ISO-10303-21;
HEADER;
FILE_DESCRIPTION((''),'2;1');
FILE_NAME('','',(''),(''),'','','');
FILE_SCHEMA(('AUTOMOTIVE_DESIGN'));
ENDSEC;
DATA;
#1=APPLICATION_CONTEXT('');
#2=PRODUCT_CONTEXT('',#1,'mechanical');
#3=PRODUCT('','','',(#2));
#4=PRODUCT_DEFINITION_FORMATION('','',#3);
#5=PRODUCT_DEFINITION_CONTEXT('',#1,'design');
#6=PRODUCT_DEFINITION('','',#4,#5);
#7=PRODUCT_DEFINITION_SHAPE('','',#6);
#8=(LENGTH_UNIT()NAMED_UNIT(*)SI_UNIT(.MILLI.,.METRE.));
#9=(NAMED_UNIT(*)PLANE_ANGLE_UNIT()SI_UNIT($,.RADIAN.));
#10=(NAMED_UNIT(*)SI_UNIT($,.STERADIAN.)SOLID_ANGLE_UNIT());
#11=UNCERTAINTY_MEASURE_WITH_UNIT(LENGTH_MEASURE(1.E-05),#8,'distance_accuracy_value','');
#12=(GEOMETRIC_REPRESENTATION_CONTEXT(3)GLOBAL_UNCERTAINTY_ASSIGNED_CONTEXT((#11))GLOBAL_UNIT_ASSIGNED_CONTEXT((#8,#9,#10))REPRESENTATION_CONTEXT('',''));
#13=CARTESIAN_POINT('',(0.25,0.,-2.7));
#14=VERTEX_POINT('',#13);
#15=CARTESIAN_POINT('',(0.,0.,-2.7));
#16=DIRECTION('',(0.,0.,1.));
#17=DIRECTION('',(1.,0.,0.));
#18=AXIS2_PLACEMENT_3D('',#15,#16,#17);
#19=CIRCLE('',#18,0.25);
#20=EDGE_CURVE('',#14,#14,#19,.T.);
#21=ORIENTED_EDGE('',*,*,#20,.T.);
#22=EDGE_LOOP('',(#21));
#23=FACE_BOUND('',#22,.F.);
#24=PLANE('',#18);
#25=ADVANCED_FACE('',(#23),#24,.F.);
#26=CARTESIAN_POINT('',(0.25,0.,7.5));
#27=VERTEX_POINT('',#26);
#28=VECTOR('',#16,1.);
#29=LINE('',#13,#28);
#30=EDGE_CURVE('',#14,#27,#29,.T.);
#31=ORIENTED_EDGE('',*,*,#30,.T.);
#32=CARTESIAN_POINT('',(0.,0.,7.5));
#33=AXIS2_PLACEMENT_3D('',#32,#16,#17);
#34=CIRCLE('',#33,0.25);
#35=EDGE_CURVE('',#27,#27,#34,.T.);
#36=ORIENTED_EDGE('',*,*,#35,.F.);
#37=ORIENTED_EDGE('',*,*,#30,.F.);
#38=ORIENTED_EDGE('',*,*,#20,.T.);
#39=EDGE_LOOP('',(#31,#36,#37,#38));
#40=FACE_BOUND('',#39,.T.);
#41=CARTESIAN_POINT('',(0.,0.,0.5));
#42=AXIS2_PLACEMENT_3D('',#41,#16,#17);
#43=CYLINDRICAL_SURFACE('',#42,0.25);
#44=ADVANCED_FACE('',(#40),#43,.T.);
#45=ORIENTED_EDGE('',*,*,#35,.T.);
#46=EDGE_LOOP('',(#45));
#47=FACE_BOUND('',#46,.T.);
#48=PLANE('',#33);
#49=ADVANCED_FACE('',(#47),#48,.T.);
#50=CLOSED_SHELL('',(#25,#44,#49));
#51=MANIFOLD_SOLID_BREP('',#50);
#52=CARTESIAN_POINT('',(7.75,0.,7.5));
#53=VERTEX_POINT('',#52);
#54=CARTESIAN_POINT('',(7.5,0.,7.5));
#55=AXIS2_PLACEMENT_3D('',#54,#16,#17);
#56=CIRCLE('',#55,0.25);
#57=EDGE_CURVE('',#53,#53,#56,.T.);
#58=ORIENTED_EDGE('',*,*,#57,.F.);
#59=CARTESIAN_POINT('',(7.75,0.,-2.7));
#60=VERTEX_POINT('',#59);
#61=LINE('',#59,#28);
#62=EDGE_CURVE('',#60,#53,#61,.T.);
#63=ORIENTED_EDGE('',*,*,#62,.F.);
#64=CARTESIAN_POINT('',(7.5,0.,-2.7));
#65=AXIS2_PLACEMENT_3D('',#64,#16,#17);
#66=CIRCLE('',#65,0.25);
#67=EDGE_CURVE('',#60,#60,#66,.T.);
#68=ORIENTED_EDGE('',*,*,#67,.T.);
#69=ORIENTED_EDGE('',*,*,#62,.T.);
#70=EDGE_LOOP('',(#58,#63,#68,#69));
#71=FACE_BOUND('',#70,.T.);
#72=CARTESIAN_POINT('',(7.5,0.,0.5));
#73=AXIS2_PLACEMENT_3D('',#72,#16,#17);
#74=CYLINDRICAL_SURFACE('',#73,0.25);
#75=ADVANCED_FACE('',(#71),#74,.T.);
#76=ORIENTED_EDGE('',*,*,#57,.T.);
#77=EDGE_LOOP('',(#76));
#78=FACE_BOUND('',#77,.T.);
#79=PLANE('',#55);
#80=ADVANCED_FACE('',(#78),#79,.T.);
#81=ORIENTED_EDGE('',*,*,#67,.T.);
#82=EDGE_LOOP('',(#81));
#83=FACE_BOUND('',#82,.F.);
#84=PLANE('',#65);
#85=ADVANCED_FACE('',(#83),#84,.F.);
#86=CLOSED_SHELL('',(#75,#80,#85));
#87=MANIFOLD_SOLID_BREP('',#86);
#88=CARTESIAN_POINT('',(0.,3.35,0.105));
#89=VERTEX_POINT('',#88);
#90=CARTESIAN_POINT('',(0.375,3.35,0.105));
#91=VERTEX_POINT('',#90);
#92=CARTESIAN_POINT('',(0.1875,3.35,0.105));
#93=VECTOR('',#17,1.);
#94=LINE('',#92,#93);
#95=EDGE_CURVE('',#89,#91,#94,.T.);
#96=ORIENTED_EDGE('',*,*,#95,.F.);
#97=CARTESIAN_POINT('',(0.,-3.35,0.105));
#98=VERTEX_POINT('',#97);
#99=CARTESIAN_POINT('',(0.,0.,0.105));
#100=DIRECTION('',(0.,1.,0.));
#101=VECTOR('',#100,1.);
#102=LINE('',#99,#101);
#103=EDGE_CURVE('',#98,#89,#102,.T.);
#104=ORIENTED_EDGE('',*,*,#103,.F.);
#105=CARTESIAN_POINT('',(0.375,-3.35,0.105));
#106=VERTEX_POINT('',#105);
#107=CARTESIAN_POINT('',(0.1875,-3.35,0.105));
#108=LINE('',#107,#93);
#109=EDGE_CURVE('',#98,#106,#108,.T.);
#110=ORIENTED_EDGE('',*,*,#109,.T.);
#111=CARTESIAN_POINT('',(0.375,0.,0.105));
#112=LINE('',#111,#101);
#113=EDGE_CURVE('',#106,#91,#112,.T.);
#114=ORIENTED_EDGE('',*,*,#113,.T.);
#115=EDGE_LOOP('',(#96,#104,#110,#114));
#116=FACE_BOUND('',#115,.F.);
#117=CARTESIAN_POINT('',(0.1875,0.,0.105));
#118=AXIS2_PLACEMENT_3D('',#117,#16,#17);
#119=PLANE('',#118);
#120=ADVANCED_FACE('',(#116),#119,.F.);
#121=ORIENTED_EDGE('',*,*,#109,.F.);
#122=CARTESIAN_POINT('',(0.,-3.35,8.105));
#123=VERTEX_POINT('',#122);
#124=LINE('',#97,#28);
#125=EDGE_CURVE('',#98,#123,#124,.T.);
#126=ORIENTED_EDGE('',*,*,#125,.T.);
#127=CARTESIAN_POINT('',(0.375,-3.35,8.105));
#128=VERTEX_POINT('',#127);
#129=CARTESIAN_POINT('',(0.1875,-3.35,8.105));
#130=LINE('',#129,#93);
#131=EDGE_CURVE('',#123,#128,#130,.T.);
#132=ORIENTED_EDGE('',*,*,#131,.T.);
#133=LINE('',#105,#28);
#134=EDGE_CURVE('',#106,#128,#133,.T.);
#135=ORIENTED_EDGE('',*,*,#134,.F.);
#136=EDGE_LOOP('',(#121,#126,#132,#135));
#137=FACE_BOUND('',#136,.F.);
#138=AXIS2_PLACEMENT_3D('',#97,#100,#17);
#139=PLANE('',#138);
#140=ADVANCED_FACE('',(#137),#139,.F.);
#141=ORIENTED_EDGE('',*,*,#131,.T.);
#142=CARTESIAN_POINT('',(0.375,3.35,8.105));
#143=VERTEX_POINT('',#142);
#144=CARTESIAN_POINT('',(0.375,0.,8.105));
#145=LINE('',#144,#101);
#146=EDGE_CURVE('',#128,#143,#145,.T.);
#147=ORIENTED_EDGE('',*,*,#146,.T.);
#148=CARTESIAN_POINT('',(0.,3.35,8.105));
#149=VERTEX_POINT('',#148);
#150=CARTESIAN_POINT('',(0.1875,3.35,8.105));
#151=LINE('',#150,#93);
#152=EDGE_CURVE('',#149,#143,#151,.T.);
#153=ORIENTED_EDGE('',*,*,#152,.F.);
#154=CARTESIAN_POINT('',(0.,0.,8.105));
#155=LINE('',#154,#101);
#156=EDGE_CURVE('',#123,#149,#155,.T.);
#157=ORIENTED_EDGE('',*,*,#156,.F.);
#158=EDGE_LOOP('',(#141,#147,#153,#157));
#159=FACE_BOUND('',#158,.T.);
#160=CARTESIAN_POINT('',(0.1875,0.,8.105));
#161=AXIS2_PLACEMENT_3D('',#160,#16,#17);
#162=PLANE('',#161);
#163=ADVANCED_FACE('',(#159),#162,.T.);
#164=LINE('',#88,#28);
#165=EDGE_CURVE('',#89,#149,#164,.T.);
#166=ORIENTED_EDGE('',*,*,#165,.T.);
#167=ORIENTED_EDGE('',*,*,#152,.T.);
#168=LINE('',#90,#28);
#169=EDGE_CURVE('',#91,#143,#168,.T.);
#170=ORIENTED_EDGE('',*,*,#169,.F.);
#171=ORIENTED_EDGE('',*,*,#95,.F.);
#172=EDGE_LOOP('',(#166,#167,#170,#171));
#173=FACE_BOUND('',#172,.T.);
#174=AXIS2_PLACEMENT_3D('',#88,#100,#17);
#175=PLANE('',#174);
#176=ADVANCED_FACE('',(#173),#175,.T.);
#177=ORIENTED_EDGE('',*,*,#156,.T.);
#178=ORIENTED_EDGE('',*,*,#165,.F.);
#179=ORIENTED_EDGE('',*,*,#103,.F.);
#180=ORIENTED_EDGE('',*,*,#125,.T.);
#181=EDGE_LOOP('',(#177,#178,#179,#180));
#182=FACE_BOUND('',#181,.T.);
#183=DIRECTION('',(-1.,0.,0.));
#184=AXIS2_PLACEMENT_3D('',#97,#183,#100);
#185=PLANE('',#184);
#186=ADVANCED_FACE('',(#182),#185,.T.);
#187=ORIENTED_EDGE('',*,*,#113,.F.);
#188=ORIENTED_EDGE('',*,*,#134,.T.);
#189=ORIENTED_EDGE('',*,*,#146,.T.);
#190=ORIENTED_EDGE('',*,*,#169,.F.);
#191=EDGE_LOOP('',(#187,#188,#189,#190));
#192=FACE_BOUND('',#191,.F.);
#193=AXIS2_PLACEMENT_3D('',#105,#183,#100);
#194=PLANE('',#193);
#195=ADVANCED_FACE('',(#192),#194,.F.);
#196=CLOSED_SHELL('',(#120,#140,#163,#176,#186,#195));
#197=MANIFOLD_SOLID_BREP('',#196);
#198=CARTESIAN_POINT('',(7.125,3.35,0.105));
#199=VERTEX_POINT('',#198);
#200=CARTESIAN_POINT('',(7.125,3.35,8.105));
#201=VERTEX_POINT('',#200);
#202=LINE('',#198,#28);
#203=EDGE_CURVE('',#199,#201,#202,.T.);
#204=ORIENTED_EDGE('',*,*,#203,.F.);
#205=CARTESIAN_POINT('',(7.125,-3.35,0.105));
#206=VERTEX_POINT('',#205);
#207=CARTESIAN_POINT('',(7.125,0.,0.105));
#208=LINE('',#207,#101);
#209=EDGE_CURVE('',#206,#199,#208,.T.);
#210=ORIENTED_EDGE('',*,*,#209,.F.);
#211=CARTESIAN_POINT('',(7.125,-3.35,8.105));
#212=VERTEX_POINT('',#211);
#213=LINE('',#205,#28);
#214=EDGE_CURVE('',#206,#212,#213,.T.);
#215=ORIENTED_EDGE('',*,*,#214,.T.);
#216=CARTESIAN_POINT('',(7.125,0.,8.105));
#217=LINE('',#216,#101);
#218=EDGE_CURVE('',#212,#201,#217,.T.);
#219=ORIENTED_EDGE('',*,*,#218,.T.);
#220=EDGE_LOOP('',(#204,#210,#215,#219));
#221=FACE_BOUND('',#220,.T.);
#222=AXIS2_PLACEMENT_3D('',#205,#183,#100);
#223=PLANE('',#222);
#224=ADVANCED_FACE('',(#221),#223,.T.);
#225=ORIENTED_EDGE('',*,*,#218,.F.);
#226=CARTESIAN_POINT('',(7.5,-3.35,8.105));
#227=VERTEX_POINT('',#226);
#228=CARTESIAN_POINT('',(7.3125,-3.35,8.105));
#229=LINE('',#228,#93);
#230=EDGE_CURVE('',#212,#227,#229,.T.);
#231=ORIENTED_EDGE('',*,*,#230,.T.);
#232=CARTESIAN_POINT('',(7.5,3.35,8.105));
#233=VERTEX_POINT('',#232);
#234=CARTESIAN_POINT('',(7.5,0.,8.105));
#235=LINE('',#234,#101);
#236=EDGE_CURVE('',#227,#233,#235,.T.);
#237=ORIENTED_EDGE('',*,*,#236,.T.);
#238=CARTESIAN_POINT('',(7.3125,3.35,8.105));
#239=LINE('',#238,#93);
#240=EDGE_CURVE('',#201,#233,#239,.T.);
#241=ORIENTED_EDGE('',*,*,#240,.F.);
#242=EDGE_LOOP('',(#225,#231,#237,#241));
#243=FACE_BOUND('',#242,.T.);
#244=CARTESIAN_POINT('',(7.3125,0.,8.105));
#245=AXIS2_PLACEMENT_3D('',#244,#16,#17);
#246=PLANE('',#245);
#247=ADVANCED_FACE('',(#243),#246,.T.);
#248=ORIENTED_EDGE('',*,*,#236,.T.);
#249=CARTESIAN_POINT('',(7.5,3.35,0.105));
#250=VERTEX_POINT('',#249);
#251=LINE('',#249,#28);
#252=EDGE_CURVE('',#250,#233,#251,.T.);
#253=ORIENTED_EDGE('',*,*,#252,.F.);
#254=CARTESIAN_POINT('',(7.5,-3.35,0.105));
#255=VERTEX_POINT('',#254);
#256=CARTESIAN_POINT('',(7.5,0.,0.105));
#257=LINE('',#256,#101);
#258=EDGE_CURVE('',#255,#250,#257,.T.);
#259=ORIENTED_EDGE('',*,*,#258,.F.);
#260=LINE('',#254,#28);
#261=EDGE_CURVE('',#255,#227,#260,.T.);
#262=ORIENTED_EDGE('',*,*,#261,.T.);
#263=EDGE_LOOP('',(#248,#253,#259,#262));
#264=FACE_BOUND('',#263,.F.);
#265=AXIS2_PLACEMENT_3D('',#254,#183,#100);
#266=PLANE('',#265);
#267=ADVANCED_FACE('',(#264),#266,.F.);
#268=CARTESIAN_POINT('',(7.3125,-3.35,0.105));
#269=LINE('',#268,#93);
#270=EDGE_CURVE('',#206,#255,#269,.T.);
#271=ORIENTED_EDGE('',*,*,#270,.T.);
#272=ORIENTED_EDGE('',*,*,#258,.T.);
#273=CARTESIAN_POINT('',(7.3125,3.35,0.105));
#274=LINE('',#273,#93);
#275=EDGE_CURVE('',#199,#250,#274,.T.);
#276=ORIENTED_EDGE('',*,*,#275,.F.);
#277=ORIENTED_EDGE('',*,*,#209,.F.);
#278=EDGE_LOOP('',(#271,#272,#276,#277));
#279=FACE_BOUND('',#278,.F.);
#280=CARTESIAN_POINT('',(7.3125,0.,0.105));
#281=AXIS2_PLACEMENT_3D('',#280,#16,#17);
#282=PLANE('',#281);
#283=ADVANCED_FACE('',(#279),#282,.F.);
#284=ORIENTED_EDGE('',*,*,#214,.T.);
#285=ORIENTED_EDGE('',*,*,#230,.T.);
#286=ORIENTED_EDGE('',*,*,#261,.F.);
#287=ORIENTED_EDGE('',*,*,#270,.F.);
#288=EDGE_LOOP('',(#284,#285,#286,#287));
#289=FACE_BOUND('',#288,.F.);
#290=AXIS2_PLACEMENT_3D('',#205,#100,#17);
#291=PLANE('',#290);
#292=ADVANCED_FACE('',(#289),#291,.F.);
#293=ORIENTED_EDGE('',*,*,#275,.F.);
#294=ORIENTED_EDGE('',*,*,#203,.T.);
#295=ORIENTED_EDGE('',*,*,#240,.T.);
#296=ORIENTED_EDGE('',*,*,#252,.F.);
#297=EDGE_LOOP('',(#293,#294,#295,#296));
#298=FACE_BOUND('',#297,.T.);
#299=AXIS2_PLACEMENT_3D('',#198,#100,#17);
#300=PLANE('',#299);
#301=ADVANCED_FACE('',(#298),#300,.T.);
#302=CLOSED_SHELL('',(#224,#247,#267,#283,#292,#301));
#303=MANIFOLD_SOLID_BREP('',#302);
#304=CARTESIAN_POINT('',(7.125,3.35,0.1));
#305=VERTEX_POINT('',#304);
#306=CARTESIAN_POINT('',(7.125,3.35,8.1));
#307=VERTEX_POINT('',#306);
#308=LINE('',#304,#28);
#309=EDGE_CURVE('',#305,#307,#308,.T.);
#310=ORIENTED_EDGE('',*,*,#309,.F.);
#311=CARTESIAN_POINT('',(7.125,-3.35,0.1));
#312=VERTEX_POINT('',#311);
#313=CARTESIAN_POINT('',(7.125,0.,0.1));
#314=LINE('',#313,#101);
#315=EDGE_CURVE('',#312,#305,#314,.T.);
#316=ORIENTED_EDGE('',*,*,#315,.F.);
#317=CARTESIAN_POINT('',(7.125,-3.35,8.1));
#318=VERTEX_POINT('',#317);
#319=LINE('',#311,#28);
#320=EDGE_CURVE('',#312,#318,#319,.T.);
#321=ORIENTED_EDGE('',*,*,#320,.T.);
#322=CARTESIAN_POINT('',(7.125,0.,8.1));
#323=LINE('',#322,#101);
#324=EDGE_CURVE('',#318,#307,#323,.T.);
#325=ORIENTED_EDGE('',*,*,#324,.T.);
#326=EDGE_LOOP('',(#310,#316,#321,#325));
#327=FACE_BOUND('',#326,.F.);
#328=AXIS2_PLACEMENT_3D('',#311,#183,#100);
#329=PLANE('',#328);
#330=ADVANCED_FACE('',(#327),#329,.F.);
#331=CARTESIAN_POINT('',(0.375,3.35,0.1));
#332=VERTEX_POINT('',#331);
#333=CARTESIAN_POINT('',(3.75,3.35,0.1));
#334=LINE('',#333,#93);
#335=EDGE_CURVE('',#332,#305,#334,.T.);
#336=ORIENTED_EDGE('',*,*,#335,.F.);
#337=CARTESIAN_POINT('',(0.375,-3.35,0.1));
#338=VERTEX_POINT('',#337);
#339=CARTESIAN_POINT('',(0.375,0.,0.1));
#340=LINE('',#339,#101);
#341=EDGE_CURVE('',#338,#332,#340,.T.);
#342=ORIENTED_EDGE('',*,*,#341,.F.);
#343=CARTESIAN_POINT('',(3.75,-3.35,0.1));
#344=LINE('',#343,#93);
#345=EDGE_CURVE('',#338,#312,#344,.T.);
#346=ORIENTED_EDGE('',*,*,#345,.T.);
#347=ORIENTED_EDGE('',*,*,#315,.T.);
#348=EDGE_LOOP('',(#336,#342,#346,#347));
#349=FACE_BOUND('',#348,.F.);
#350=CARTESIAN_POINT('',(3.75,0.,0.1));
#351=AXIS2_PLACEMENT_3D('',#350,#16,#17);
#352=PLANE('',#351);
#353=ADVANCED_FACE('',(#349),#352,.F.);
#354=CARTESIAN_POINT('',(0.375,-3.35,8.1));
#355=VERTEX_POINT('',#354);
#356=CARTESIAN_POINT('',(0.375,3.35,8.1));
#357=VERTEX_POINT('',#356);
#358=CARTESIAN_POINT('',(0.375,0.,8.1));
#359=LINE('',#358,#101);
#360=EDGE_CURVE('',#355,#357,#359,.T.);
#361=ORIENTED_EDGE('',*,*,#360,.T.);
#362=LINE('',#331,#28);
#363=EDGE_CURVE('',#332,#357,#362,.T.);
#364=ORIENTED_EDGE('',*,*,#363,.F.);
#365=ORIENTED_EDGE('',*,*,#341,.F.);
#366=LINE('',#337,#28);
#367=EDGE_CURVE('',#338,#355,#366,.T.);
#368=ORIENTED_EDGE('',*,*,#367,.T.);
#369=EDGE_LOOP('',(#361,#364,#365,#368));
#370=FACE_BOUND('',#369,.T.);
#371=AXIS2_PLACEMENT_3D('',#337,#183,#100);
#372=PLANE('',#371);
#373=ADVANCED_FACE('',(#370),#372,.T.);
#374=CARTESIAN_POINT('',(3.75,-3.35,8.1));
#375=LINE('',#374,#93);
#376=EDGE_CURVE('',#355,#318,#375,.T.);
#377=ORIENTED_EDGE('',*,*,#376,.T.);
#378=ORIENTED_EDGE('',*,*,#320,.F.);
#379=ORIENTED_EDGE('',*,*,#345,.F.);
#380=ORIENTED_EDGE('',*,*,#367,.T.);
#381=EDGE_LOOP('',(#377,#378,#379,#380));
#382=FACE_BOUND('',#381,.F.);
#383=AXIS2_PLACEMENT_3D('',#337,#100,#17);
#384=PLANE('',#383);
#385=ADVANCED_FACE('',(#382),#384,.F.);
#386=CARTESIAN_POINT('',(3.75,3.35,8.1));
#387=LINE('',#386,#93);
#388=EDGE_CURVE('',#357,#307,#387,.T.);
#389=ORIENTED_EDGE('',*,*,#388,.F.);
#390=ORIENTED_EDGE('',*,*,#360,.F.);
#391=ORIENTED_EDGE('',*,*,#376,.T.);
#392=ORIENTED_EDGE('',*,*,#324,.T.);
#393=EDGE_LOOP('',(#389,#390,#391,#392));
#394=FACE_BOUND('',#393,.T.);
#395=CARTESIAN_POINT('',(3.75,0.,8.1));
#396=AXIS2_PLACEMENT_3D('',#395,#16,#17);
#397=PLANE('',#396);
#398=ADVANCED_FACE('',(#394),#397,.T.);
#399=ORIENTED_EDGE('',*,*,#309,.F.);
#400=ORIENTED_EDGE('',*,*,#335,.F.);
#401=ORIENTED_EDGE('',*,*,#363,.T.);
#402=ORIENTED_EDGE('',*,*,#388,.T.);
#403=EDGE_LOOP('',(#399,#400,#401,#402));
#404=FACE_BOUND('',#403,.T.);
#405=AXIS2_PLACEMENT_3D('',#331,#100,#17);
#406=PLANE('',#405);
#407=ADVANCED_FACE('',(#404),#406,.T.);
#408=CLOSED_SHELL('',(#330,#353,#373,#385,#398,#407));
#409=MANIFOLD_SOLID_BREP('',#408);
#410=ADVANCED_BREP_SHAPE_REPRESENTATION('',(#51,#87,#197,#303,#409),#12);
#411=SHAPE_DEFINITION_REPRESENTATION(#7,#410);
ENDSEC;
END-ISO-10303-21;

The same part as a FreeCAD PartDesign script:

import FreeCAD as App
import Part
import Sketcher
Q = App.Units.Quantity


def add_polygon(sketch, points):
    """Adds a closed chain of lines whose ends are joined by coincident constraints."""
    first, n = sketch.GeometryCount, len(points)
    for a, b in zip(points, points[1:] + points[:1]):
        sketch.addGeometry(Part.LineSegment(App.Vector(*a, 0), App.Vector(*b, 0)), False)
    for i in range(n):
        sketch.addConstraint(Sketcher.Constraint("Coincident", first + i, 2, first + (i + 1) % n, 1))

doc = App.newDocument("Part")
body = doc.addObject("PartDesign::Body", "Body")

# Sketch on XY plane
sketch1 = doc.addObject("Sketcher::SketchObject", "Sketch")
body.addObject(sketch1)
sketch1.AttachmentSupport = (doc.XY_Plane, [""])
sketch1.MapMode = "FlatFace"
sketch1.AttachmentOffset = App.Placement(App.Vector(0, 0, 0.1), App.Rotation())
add_polygon(sketch1, [(0.375, 3.35), (0.375, -3.35), (7.125, -3.35), (7.125, 3.35)])  # lines 0-3
sketch1.addConstraint([
    Sketcher.Constraint("Vertical", 0),
    Sketcher.Constraint("Horizontal", 1),
    Sketcher.Constraint("Vertical", 2),
    Sketcher.Constraint("Horizontal", 3),
    Sketcher.Constraint("DistanceY", 0, 2, 0, 1, Q("6.7 mm")),
    Sketcher.Constraint("DistanceX", 1, 1, 1, 2, Q("6.75 mm")),
    Sketcher.Constraint("DistanceY", 0, 2, -1, 1, Q("3.35 mm")),
    Sketcher.Constraint("DistanceX", -1, 1, 0, 2, Q("0.375 mm")),
])
pad1 = doc.addObject("PartDesign::Pad", "Pad")
body.addObject(pad1)
pad1.Profile = sketch1
pad1.Length = 8
body2 = doc.addObject("PartDesign::Body", "Body001")
body2.AllowCompound = True

# Sketch on XY plane
sketch2 = doc.addObject("Sketcher::SketchObject", "Sketch001")
body2.addObject(sketch2)
sketch2.AttachmentSupport = (doc.getObject("XY_Plane001"), [""])
sketch2.MapMode = "FlatFace"
sketch2.AttachmentOffset = App.Placement(App.Vector(0, 0, 0.5), App.Rotation())
sketch2.addGeometry([
    Part.Circle(App.Vector(0, 0, 0), App.Vector(0, 0, 1), 0.25),
    Part.Circle(App.Vector(7.5, 0, 0), App.Vector(0, 0, 1), 0.25),
], False)
sketch2.addConstraint([
    Sketcher.Constraint("Coincident", 0, 3, -1, 1),
    Sketcher.Constraint("Equal", 0, 1),
    Sketcher.Constraint("PointOnObject", 1, 3, -1),
    Sketcher.Constraint("Diameter", 0, Q("0.5 mm")),
    Sketcher.Constraint("DistanceX", -1, 1, 1, 3, Q("7.5 mm")),
])
pad2 = doc.addObject("PartDesign::Pad", "Pad001")
body2.addObject(pad2)
pad2.Profile = sketch2
pad2.Type = "TwoLengths"
pad2.Length = 7
pad2.Length2 = 3.2
body3 = doc.addObject("PartDesign::Body", "Body002")
body3.AllowCompound = True

# Sketch on XY plane
sketch3 = doc.addObject("Sketcher::SketchObject", "Sketch002")
body3.addObject(sketch3)
sketch3.AttachmentSupport = (doc.getObject("XY_Plane002"), [""])
sketch3.MapMode = "FlatFace"
sketch3.AttachmentOffset = App.Placement(App.Vector(0, 0, 0.105), App.Rotation())
add_polygon(sketch3, [(0, 3.35), (0, -3.35), (0.375, -3.35), (0.375, 3.35)])  # lines 0-3
add_polygon(sketch3, [(7.125, 3.35), (7.125, -3.35), (7.5, -3.35), (7.5, 3.35)])  # lines 4-7
sketch3.addConstraint([
    Sketcher.Constraint("Vertical", 0),
    Sketcher.Constraint("Horizontal", 1),
    Sketcher.Constraint("Vertical", 2),
    Sketcher.Constraint("Horizontal", 3),
    Sketcher.Constraint("Vertical", 4),
    Sketcher.Constraint("Horizontal", 5),
    Sketcher.Constraint("Vertical", 6),
    Sketcher.Constraint("Horizontal", 7),
    Sketcher.Constraint("Symmetric", 0, 2, 3, 2, -1, 1),
    Sketcher.Constraint("Horizontal", 1, 2, 4, 2),
    Sketcher.Constraint("Horizontal", 3, 2, 6, 2),
    Sketcher.Constraint("Equal", 3, 5),
    Sketcher.Constraint("DistanceY", 0, 2, 0, 1, Q("6.7 mm")),
    Sketcher.Constraint("DistanceX", -1, 1, 5, 2, Q("7.5 mm")),
    Sketcher.Constraint("DistanceX", 1, 1, 1, 2, Q("0.375 mm")),
])
pad3 = doc.addObject("PartDesign::Pad", "Pad002")
body3.addObject(pad3)
pad3.Profile = sketch3
pad3.Length = 8

doc.recompute()
